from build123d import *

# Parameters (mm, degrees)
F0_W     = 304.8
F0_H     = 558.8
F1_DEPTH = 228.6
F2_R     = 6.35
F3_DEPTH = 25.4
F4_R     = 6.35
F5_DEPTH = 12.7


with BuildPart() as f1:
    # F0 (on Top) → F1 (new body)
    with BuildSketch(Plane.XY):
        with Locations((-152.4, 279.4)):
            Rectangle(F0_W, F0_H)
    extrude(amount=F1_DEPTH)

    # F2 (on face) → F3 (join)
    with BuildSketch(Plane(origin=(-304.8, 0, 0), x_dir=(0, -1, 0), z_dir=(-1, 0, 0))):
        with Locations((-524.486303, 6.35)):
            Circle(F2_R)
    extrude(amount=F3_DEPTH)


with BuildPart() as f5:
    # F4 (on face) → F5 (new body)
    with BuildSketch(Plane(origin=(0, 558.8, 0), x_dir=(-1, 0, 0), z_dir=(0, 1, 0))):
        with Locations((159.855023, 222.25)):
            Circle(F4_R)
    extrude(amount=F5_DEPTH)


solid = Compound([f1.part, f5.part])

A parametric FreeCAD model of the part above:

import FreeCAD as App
import Part
import Sketcher
from FreeCAD import Vector
Q = App.Units.Quantity


def add_polygon(sketch, points):
    """Adds a closed chain of lines whose ends are joined by coincident constraints."""
    first, n = sketch.GeometryCount, len(points)
    for a, b in zip(points, points[1:] + points[:1]):
        sketch.addGeometry(Part.LineSegment(App.Vector(*a, 0), App.Vector(*b, 0)), False)
    for i in range(n):
        sketch.addConstraint(Sketcher.Constraint("Coincident", first + i, 2, first + (i + 1) % n, 1))

doc = App.newDocument("Part")
body = doc.addObject("PartDesign::Body", "Body")

# Sketch on XY plane
sketch1 = doc.addObject("Sketcher::SketchObject", "Sketch")
body.addObject(sketch1)
sketch1.AttachmentSupport = (doc.XY_Plane, [""])
sketch1.MapMode = "FlatFace"
add_polygon(sketch1, [(-305, 559), (-305, 0), (0, 0), (0, 559)])  # lines 0-3
sketch1.addConstraint([
    Sketcher.Constraint("Vertical", 0),
    Sketcher.Constraint("Horizontal", 1),
    Sketcher.Constraint("Vertical", 2),
    Sketcher.Constraint("Horizontal", 3),
    Sketcher.Constraint("Coincident", 1, 2, -1, 1),
    Sketcher.Constraint("DistanceX", 1, 1, 1, 2, Q("12 in")),
    Sketcher.Constraint("DistanceY", 0, 2, 0, 1, Q("22 in")),
])
pad1 = doc.addObject("PartDesign::Pad", "Pad")
body.addObject(pad1)
pad1.Profile = sketch1
pad1.Length = Q("9 in")

# Sketch on YZ plane
sketch2 = doc.addObject("Sketcher::SketchObject", "Sketch001")
body.addObject(sketch2)
sketch2.AttachmentSupport = (doc.YZ_Plane, [""])
sketch2.MapMode = "FlatFace"
sketch2.AttachmentOffset = App.Placement(Vector(0, 0, -12 * 25.4), App.Rotation())
sketch2.addGeometry(Part.Circle(Vector(524, 6, 0), Vector(0, 0, 1), 6), False)
sketch2.addConstraint([
    Sketcher.Constraint("Diameter", 0, Q("0.5 in")),
    Sketcher.Constraint("DistanceY", -1, 1, 0, 3, Q("0.25 in")),
    Sketcher.Constraint("DistanceX", -1, 1, 0, 3, Q("524.486303 mm")),
])
pad2 = doc.addObject("PartDesign::Pad", "Pad001")
body.addObject(pad2)
pad2.Profile = sketch2
pad2.Length = Q("1 in")
pad2.Reversed = True
body2 = doc.addObject("PartDesign::Body", "Body001")

# Sketch on XZ plane
sketch3 = doc.addObject("Sketcher::SketchObject", "Sketch002")
body2.addObject(sketch3)
sketch3.AttachmentSupport = (doc.getObject("XZ_Plane001"), [""])
sketch3.MapMode = "FlatFace"
sketch3.AttachmentOffset = App.Placement(Vector(0, 0, -22 * 25.4), App.Rotation())
sketch3.addGeometry(Part.Circle(Vector(-160, 222, 0), Vector(0, 0, 1), 6), False)
sketch3.addConstraint([
    Sketcher.Constraint("Diameter", 0, Q("0.5 in")),
    Sketcher.Constraint("DistanceY", -1, 1, 0, 3, Q("8.75 in")),
    Sketcher.Constraint("DistanceX", 0, 3, -1, 1, Q("159.855023 mm")),
])
pad3 = doc.addObject("PartDesign::Pad", "Pad002")
body2.addObject(pad3)
pad3.Profile = sketch3
pad3.Length = Q("0.5 in")
pad3.Reversed = True

doc.recompute()
